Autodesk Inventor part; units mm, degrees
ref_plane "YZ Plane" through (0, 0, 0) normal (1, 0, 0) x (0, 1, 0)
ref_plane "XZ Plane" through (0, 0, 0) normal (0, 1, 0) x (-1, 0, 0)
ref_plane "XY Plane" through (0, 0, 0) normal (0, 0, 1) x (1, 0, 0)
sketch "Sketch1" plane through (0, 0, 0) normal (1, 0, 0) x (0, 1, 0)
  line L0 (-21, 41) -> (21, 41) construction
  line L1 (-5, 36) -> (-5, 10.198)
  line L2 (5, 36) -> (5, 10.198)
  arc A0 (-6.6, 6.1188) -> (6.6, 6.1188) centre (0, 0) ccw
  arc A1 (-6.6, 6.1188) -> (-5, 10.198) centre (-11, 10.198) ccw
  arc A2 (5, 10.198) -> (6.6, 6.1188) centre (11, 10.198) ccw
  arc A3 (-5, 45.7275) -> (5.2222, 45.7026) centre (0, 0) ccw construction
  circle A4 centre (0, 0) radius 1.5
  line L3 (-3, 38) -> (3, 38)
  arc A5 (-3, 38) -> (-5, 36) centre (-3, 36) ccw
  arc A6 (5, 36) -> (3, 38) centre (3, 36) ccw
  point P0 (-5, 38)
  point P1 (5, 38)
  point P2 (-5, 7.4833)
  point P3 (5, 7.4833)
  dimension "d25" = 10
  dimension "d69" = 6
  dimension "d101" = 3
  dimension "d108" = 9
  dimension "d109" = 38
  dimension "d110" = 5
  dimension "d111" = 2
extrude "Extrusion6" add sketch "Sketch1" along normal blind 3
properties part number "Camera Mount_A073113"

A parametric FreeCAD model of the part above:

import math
import FreeCAD as App
import Part
import Sketcher

V = App.Vector
Q = App.Units.Quantity

doc = App.newDocument("Part")
body = doc.addObject("PartDesign::Body", "Body")

# Sketch on YZ plane
sketch1 = body.newObject("Sketcher::SketchObject", "Sketch")
sketch1.AttachmentSupport = (doc.getObject("YZ_Plane"), [""])
sketch1.MapMode = "FlatFace"
sketch1.addGeometry([
    Part.ArcOfCircle(Part.Circle(V(-3, 36, 0), V(0, 0, 1), 2), math.radians(90), math.radians(180)),  # 0
    Part.LineSegment(V(-5, 36, 0), V(-5, 10.2, 0)),  # 1
    Part.ArcOfCircle(Part.Circle(V(-11, 10.2, 0), V(0, 0, 1), 6), math.radians(-43), math.radians(0)),  # 2
    Part.ArcOfCircle(Part.Circle(V(0, 0, 0), V(0, 0, 1), 9), math.radians(137), math.radians(403)),  # 3
    Part.ArcOfCircle(Part.Circle(V(11, 10.2, 0), V(0, 0, 1), 6), math.radians(180), math.radians(223)),  # 4
    Part.LineSegment(V(5, 10.2, 0), V(5, 36, 0)),  # 5
    Part.ArcOfCircle(Part.Circle(V(3, 36, 0), V(0, 0, 1), 2), math.radians(0), math.radians(90)),  # 6
    Part.LineSegment(V(3, 38, 0), V(-3, 38, 0)),  # 7
    Part.Circle(V(0, 0, 0), V(0, 0, 1), 1.5),  # 8
], False)
sketch1.addConstraint([
    Sketcher.Constraint("Tangent", 0, 2, 1, 1),
    Sketcher.Constraint("Tangent", 1, 2, 2, 2),
    Sketcher.Constraint("Tangent", 2, 1, 3, 1),
    Sketcher.Constraint("Tangent", 3, 2, 4, 2),
    Sketcher.Constraint("Tangent", 4, 1, 5, 1),
    Sketcher.Constraint("Tangent", 5, 2, 6, 1),
    Sketcher.Constraint("Tangent", 6, 2, 7, 1),
    Sketcher.Constraint("Tangent", 7, 2, 0, 1),
    Sketcher.Constraint("Vertical", 1),
    Sketcher.Constraint("Vertical", 5),
    Sketcher.Constraint("Horizontal", 7),
    Sketcher.Constraint("Coincident", 3, 3, -1, 1),
    Sketcher.Constraint("Coincident", 8, 3, -1, 1),
    Sketcher.Constraint("Equal", 2, 4),
    Sketcher.Constraint("Equal", 0, 6),
    Sketcher.Constraint("Horizontal", 2, 3, 4, 3),
    Sketcher.Constraint("Diameter", 8, Q("3 mm")),
    Sketcher.Constraint("Radius", 0, Q("2 mm")),
    Sketcher.Constraint("Radius", 2, Q("6 mm")),
    Sketcher.Constraint("Radius", 3, Q("9 mm")),
    Sketcher.Constraint("DistanceX", 7, 2, 7, 1, Q("6 mm")),
    Sketcher.Constraint("DistanceY", -1, 1, 6, 2, Q("38 mm")),
])
pad1 = body.newObject("PartDesign::Pad", "Pad")
pad1.Profile = sketch1
pad1.Length = 3

doc.recompute()
